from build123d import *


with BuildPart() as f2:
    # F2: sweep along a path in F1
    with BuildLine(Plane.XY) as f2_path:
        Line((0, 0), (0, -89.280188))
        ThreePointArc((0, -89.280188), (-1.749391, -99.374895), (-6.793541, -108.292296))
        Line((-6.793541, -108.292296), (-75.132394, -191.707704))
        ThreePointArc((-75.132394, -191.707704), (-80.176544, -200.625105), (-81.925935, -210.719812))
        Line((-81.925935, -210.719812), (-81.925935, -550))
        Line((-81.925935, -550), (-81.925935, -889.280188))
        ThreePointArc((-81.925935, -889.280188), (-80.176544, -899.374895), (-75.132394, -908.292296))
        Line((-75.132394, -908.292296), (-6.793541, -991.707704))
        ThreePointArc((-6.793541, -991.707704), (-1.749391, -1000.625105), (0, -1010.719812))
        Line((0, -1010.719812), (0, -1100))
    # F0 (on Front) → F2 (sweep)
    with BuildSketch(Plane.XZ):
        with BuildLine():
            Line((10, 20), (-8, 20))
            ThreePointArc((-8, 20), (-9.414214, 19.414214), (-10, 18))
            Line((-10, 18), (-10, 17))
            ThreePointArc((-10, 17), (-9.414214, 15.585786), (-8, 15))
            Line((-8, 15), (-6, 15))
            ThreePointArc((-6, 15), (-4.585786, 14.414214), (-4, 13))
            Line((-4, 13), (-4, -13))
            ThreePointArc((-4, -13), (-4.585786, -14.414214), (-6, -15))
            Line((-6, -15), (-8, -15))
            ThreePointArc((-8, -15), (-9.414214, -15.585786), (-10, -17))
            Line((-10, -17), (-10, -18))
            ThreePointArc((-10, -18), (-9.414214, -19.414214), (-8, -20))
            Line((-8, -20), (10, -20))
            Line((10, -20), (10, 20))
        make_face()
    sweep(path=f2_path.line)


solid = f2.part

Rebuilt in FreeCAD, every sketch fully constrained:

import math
import FreeCAD as App
import Part
import Sketcher

V = App.Vector
Q = App.Units.Quantity

doc = App.newDocument("Part")
body = doc.addObject("PartDesign::Body", "Body")

sketch1 = doc.addObject("Sketcher::SketchObject", "Sketch")
body.addObject(sketch1)
sketch1.AttachmentSupport = (doc.XZ_Plane, [""])
sketch1.MapMode = "FlatFace"
sketch1.addGeometry([
    Part.LineSegment(V(10, 20, 0), V(-8, 20, 0)),
    Part.ArcOfCircle(Part.Circle(V(-8, 18, 0), V(0, 0, 1), 2), math.radians(90), math.radians(180)),
    Part.LineSegment(V(-10, 18, 0), V(-10, 17, 0)),
    Part.ArcOfCircle(Part.Circle(V(-8, 17, 0), V(0, 0, 1), 2), math.radians(180), math.radians(270)),
    Part.LineSegment(V(-8, 15, 0), V(-6, 15, 0)),
    Part.ArcOfCircle(Part.Circle(V(-6, 13, 0), V(0, 0, 1), 2), math.radians(0), math.radians(90)),
    Part.LineSegment(V(-4, 13, 0), V(-4, -13, 0)),
    Part.ArcOfCircle(Part.Circle(V(-6, -13, 0), V(0, 0, 1), 2), math.radians(-90), math.radians(0)),
    Part.LineSegment(V(-6, -15, 0), V(-8, -15, 0)),
    Part.ArcOfCircle(Part.Circle(V(-8, -17, 0), V(0, 0, 1), 2), math.radians(90), math.radians(180)),
    Part.LineSegment(V(-10, -17, 0), V(-10, -18, 0)),
    Part.ArcOfCircle(Part.Circle(V(-8, -18, 0), V(0, 0, 1), 2), math.radians(180), math.radians(270)),
    Part.LineSegment(V(-8, -20, 0), V(10, -20, 0)),
    Part.LineSegment(V(10, -20, 0), V(10, 20, 0)),
], False)
sketch1.addConstraint([
    Sketcher.Constraint("Tangent", 0, 2, 1, 1),
    Sketcher.Constraint("Tangent", 1, 2, 2, 1),
    Sketcher.Constraint("Tangent", 2, 2, 3, 1),
    Sketcher.Constraint("Tangent", 3, 2, 4, 1),
    Sketcher.Constraint("Tangent", 4, 2, 5, 2),
    Sketcher.Constraint("Tangent", 5, 1, 6, 1),
    Sketcher.Constraint("Tangent", 6, 2, 7, 2),
    Sketcher.Constraint("Tangent", 7, 1, 8, 1),
    Sketcher.Constraint("Tangent", 8, 2, 9, 1),
    Sketcher.Constraint("Tangent", 9, 2, 10, 1),
    Sketcher.Constraint("Tangent", 10, 2, 11, 1),
    Sketcher.Constraint("Tangent", 11, 2, 12, 1),
    Sketcher.Constraint("Coincident", 12, 2, 13, 1),
    Sketcher.Constraint("Coincident", 13, 2, 0, 1),
    Sketcher.Constraint("Horizontal", 0),
    Sketcher.Constraint("Vertical", 2),
    Sketcher.Constraint("Horizontal", 4),
    Sketcher.Constraint("Vertical", 6),
    Sketcher.Constraint("Horizontal", 8),
    Sketcher.Constraint("Vertical", 10),
    Sketcher.Constraint("Horizontal", 12),
    Sketcher.Constraint("Vertical", 13),
    Sketcher.Constraint("Equal", 1, 3),
    Sketcher.Constraint("Equal", 3, 5),
    Sketcher.Constraint("Equal", 5, 7),
    Sketcher.Constraint("Equal", 7, 9),
    Sketcher.Constraint("Equal", 9, 11),
    Sketcher.Constraint("Symmetric", 3, 3, 9, 3, -1),
    Sketcher.Constraint("Equal", 2, 10),
    Sketcher.Constraint("Radius", 1, Q("1.999999 mm")),
    Sketcher.Constraint("DistanceX", 0, 2, 0, 1, Q("18 mm")),
    Sketcher.Constraint("DistanceX", 4, 1, 4, 2, Q("2 mm")),
    Sketcher.Constraint("DistanceY", 2, 2, 2, 1, Q("1 mm")),
    Sketcher.Constraint("DistanceY", 6, 2, 6, 1, Q("26 mm")),
    Sketcher.Constraint("DistanceX", 1, 3, -1, 1, Q("8.000001 mm")),
])

sketch2 = doc.addObject("Sketcher::SketchObject", "Sketch001")
body.addObject(sketch2)
sketch2.AttachmentSupport = (doc.XY_Plane, [""])
sketch2.MapMode = "FlatFace"
sketch2.addGeometry([
    Part.LineSegment(V(0, 0, 0), V(0, -89, 0)),
    Part.ArcOfCircle(Part.Circle(V(-30, -89, 0), V(0, 0, 1), 30), math.radians(-39), math.radians(0)),
    Part.LineSegment(V(-7, -108, 0), V(-75, -192, 0)),
    Part.ArcOfCircle(Part.Circle(V(-52, -211, 0), V(0, 0, 1), 30), math.radians(141), math.radians(180)),
    Part.LineSegment(V(-82, -211, 0), V(-82, -889, 0)),
    Part.ArcOfCircle(Part.Circle(V(-52, -889, 0), V(0, 0, 1), 30), math.radians(180), math.radians(219)),
    Part.LineSegment(V(-75, -908, 0), V(-7, -992, 0)),
    Part.ArcOfCircle(Part.Circle(V(-30, -1011, 0), V(0, 0, 1), 30), math.radians(0), math.radians(39)),
    Part.LineSegment(V(0, -1011, 0), V(0, -1100, 0)),
], False)
sketch2.addConstraint([
    Sketcher.Constraint("Tangent", 0, 2, 1, 2),
    Sketcher.Constraint("Tangent", 1, 1, 2, 1),
    Sketcher.Constraint("Tangent", 2, 2, 3, 1),
    Sketcher.Constraint("Tangent", 3, 2, 4, 1),
    Sketcher.Constraint("Tangent", 4, 2, 5, 1),
    Sketcher.Constraint("Tangent", 5, 2, 6, 1),
    Sketcher.Constraint("Tangent", 6, 2, 7, 2),
    Sketcher.Constraint("Tangent", 7, 1, 8, 1),
    Sketcher.Constraint("Vertical", 0),
    Sketcher.Constraint("Vertical", 4),
    Sketcher.Constraint("Vertical", 8),
    Sketcher.Constraint("Coincident", 0, 1, -1, 1),
    Sketcher.Constraint("Equal", 1, 3),
    Sketcher.Constraint("Equal", 3, 5),
    Sketcher.Constraint("Equal", 5, 7),
    Sketcher.Constraint("PointOnObject", 7, 1, -2),
    Sketcher.Constraint("Vertical", 2, 2, 5, 2),
    Sketcher.Constraint("Equal", 0, 8),
    Sketcher.Constraint("DistanceY", 8, 2, -1, 1, Q("1100 mm")),
    Sketcher.Constraint("DistanceY", 5, 3, 1, 3, Q("800 mm")),
    Sketcher.Constraint("Radius", 1, Q("29.999994 mm")),
    Sketcher.Constraint("DistanceX", 3, 3, 1, 1, Q("45.1324 mm")),
    Sketcher.Constraint("Distance", 2, Q("107.834731 mm")),
])
doc.recompute()

additivepipe = doc.addObject("PartDesign::AdditivePipe", "AdditivePipe")
body.addObject(additivepipe)
additivepipe.Profile = sketch1
additivepipe.Spine = (sketch2, ["Edge1", "Edge2", "Edge3", "Edge4", "Edge5", "Edge6", "Edge7", "Edge8", "Edge9"])

doc.recompute()
